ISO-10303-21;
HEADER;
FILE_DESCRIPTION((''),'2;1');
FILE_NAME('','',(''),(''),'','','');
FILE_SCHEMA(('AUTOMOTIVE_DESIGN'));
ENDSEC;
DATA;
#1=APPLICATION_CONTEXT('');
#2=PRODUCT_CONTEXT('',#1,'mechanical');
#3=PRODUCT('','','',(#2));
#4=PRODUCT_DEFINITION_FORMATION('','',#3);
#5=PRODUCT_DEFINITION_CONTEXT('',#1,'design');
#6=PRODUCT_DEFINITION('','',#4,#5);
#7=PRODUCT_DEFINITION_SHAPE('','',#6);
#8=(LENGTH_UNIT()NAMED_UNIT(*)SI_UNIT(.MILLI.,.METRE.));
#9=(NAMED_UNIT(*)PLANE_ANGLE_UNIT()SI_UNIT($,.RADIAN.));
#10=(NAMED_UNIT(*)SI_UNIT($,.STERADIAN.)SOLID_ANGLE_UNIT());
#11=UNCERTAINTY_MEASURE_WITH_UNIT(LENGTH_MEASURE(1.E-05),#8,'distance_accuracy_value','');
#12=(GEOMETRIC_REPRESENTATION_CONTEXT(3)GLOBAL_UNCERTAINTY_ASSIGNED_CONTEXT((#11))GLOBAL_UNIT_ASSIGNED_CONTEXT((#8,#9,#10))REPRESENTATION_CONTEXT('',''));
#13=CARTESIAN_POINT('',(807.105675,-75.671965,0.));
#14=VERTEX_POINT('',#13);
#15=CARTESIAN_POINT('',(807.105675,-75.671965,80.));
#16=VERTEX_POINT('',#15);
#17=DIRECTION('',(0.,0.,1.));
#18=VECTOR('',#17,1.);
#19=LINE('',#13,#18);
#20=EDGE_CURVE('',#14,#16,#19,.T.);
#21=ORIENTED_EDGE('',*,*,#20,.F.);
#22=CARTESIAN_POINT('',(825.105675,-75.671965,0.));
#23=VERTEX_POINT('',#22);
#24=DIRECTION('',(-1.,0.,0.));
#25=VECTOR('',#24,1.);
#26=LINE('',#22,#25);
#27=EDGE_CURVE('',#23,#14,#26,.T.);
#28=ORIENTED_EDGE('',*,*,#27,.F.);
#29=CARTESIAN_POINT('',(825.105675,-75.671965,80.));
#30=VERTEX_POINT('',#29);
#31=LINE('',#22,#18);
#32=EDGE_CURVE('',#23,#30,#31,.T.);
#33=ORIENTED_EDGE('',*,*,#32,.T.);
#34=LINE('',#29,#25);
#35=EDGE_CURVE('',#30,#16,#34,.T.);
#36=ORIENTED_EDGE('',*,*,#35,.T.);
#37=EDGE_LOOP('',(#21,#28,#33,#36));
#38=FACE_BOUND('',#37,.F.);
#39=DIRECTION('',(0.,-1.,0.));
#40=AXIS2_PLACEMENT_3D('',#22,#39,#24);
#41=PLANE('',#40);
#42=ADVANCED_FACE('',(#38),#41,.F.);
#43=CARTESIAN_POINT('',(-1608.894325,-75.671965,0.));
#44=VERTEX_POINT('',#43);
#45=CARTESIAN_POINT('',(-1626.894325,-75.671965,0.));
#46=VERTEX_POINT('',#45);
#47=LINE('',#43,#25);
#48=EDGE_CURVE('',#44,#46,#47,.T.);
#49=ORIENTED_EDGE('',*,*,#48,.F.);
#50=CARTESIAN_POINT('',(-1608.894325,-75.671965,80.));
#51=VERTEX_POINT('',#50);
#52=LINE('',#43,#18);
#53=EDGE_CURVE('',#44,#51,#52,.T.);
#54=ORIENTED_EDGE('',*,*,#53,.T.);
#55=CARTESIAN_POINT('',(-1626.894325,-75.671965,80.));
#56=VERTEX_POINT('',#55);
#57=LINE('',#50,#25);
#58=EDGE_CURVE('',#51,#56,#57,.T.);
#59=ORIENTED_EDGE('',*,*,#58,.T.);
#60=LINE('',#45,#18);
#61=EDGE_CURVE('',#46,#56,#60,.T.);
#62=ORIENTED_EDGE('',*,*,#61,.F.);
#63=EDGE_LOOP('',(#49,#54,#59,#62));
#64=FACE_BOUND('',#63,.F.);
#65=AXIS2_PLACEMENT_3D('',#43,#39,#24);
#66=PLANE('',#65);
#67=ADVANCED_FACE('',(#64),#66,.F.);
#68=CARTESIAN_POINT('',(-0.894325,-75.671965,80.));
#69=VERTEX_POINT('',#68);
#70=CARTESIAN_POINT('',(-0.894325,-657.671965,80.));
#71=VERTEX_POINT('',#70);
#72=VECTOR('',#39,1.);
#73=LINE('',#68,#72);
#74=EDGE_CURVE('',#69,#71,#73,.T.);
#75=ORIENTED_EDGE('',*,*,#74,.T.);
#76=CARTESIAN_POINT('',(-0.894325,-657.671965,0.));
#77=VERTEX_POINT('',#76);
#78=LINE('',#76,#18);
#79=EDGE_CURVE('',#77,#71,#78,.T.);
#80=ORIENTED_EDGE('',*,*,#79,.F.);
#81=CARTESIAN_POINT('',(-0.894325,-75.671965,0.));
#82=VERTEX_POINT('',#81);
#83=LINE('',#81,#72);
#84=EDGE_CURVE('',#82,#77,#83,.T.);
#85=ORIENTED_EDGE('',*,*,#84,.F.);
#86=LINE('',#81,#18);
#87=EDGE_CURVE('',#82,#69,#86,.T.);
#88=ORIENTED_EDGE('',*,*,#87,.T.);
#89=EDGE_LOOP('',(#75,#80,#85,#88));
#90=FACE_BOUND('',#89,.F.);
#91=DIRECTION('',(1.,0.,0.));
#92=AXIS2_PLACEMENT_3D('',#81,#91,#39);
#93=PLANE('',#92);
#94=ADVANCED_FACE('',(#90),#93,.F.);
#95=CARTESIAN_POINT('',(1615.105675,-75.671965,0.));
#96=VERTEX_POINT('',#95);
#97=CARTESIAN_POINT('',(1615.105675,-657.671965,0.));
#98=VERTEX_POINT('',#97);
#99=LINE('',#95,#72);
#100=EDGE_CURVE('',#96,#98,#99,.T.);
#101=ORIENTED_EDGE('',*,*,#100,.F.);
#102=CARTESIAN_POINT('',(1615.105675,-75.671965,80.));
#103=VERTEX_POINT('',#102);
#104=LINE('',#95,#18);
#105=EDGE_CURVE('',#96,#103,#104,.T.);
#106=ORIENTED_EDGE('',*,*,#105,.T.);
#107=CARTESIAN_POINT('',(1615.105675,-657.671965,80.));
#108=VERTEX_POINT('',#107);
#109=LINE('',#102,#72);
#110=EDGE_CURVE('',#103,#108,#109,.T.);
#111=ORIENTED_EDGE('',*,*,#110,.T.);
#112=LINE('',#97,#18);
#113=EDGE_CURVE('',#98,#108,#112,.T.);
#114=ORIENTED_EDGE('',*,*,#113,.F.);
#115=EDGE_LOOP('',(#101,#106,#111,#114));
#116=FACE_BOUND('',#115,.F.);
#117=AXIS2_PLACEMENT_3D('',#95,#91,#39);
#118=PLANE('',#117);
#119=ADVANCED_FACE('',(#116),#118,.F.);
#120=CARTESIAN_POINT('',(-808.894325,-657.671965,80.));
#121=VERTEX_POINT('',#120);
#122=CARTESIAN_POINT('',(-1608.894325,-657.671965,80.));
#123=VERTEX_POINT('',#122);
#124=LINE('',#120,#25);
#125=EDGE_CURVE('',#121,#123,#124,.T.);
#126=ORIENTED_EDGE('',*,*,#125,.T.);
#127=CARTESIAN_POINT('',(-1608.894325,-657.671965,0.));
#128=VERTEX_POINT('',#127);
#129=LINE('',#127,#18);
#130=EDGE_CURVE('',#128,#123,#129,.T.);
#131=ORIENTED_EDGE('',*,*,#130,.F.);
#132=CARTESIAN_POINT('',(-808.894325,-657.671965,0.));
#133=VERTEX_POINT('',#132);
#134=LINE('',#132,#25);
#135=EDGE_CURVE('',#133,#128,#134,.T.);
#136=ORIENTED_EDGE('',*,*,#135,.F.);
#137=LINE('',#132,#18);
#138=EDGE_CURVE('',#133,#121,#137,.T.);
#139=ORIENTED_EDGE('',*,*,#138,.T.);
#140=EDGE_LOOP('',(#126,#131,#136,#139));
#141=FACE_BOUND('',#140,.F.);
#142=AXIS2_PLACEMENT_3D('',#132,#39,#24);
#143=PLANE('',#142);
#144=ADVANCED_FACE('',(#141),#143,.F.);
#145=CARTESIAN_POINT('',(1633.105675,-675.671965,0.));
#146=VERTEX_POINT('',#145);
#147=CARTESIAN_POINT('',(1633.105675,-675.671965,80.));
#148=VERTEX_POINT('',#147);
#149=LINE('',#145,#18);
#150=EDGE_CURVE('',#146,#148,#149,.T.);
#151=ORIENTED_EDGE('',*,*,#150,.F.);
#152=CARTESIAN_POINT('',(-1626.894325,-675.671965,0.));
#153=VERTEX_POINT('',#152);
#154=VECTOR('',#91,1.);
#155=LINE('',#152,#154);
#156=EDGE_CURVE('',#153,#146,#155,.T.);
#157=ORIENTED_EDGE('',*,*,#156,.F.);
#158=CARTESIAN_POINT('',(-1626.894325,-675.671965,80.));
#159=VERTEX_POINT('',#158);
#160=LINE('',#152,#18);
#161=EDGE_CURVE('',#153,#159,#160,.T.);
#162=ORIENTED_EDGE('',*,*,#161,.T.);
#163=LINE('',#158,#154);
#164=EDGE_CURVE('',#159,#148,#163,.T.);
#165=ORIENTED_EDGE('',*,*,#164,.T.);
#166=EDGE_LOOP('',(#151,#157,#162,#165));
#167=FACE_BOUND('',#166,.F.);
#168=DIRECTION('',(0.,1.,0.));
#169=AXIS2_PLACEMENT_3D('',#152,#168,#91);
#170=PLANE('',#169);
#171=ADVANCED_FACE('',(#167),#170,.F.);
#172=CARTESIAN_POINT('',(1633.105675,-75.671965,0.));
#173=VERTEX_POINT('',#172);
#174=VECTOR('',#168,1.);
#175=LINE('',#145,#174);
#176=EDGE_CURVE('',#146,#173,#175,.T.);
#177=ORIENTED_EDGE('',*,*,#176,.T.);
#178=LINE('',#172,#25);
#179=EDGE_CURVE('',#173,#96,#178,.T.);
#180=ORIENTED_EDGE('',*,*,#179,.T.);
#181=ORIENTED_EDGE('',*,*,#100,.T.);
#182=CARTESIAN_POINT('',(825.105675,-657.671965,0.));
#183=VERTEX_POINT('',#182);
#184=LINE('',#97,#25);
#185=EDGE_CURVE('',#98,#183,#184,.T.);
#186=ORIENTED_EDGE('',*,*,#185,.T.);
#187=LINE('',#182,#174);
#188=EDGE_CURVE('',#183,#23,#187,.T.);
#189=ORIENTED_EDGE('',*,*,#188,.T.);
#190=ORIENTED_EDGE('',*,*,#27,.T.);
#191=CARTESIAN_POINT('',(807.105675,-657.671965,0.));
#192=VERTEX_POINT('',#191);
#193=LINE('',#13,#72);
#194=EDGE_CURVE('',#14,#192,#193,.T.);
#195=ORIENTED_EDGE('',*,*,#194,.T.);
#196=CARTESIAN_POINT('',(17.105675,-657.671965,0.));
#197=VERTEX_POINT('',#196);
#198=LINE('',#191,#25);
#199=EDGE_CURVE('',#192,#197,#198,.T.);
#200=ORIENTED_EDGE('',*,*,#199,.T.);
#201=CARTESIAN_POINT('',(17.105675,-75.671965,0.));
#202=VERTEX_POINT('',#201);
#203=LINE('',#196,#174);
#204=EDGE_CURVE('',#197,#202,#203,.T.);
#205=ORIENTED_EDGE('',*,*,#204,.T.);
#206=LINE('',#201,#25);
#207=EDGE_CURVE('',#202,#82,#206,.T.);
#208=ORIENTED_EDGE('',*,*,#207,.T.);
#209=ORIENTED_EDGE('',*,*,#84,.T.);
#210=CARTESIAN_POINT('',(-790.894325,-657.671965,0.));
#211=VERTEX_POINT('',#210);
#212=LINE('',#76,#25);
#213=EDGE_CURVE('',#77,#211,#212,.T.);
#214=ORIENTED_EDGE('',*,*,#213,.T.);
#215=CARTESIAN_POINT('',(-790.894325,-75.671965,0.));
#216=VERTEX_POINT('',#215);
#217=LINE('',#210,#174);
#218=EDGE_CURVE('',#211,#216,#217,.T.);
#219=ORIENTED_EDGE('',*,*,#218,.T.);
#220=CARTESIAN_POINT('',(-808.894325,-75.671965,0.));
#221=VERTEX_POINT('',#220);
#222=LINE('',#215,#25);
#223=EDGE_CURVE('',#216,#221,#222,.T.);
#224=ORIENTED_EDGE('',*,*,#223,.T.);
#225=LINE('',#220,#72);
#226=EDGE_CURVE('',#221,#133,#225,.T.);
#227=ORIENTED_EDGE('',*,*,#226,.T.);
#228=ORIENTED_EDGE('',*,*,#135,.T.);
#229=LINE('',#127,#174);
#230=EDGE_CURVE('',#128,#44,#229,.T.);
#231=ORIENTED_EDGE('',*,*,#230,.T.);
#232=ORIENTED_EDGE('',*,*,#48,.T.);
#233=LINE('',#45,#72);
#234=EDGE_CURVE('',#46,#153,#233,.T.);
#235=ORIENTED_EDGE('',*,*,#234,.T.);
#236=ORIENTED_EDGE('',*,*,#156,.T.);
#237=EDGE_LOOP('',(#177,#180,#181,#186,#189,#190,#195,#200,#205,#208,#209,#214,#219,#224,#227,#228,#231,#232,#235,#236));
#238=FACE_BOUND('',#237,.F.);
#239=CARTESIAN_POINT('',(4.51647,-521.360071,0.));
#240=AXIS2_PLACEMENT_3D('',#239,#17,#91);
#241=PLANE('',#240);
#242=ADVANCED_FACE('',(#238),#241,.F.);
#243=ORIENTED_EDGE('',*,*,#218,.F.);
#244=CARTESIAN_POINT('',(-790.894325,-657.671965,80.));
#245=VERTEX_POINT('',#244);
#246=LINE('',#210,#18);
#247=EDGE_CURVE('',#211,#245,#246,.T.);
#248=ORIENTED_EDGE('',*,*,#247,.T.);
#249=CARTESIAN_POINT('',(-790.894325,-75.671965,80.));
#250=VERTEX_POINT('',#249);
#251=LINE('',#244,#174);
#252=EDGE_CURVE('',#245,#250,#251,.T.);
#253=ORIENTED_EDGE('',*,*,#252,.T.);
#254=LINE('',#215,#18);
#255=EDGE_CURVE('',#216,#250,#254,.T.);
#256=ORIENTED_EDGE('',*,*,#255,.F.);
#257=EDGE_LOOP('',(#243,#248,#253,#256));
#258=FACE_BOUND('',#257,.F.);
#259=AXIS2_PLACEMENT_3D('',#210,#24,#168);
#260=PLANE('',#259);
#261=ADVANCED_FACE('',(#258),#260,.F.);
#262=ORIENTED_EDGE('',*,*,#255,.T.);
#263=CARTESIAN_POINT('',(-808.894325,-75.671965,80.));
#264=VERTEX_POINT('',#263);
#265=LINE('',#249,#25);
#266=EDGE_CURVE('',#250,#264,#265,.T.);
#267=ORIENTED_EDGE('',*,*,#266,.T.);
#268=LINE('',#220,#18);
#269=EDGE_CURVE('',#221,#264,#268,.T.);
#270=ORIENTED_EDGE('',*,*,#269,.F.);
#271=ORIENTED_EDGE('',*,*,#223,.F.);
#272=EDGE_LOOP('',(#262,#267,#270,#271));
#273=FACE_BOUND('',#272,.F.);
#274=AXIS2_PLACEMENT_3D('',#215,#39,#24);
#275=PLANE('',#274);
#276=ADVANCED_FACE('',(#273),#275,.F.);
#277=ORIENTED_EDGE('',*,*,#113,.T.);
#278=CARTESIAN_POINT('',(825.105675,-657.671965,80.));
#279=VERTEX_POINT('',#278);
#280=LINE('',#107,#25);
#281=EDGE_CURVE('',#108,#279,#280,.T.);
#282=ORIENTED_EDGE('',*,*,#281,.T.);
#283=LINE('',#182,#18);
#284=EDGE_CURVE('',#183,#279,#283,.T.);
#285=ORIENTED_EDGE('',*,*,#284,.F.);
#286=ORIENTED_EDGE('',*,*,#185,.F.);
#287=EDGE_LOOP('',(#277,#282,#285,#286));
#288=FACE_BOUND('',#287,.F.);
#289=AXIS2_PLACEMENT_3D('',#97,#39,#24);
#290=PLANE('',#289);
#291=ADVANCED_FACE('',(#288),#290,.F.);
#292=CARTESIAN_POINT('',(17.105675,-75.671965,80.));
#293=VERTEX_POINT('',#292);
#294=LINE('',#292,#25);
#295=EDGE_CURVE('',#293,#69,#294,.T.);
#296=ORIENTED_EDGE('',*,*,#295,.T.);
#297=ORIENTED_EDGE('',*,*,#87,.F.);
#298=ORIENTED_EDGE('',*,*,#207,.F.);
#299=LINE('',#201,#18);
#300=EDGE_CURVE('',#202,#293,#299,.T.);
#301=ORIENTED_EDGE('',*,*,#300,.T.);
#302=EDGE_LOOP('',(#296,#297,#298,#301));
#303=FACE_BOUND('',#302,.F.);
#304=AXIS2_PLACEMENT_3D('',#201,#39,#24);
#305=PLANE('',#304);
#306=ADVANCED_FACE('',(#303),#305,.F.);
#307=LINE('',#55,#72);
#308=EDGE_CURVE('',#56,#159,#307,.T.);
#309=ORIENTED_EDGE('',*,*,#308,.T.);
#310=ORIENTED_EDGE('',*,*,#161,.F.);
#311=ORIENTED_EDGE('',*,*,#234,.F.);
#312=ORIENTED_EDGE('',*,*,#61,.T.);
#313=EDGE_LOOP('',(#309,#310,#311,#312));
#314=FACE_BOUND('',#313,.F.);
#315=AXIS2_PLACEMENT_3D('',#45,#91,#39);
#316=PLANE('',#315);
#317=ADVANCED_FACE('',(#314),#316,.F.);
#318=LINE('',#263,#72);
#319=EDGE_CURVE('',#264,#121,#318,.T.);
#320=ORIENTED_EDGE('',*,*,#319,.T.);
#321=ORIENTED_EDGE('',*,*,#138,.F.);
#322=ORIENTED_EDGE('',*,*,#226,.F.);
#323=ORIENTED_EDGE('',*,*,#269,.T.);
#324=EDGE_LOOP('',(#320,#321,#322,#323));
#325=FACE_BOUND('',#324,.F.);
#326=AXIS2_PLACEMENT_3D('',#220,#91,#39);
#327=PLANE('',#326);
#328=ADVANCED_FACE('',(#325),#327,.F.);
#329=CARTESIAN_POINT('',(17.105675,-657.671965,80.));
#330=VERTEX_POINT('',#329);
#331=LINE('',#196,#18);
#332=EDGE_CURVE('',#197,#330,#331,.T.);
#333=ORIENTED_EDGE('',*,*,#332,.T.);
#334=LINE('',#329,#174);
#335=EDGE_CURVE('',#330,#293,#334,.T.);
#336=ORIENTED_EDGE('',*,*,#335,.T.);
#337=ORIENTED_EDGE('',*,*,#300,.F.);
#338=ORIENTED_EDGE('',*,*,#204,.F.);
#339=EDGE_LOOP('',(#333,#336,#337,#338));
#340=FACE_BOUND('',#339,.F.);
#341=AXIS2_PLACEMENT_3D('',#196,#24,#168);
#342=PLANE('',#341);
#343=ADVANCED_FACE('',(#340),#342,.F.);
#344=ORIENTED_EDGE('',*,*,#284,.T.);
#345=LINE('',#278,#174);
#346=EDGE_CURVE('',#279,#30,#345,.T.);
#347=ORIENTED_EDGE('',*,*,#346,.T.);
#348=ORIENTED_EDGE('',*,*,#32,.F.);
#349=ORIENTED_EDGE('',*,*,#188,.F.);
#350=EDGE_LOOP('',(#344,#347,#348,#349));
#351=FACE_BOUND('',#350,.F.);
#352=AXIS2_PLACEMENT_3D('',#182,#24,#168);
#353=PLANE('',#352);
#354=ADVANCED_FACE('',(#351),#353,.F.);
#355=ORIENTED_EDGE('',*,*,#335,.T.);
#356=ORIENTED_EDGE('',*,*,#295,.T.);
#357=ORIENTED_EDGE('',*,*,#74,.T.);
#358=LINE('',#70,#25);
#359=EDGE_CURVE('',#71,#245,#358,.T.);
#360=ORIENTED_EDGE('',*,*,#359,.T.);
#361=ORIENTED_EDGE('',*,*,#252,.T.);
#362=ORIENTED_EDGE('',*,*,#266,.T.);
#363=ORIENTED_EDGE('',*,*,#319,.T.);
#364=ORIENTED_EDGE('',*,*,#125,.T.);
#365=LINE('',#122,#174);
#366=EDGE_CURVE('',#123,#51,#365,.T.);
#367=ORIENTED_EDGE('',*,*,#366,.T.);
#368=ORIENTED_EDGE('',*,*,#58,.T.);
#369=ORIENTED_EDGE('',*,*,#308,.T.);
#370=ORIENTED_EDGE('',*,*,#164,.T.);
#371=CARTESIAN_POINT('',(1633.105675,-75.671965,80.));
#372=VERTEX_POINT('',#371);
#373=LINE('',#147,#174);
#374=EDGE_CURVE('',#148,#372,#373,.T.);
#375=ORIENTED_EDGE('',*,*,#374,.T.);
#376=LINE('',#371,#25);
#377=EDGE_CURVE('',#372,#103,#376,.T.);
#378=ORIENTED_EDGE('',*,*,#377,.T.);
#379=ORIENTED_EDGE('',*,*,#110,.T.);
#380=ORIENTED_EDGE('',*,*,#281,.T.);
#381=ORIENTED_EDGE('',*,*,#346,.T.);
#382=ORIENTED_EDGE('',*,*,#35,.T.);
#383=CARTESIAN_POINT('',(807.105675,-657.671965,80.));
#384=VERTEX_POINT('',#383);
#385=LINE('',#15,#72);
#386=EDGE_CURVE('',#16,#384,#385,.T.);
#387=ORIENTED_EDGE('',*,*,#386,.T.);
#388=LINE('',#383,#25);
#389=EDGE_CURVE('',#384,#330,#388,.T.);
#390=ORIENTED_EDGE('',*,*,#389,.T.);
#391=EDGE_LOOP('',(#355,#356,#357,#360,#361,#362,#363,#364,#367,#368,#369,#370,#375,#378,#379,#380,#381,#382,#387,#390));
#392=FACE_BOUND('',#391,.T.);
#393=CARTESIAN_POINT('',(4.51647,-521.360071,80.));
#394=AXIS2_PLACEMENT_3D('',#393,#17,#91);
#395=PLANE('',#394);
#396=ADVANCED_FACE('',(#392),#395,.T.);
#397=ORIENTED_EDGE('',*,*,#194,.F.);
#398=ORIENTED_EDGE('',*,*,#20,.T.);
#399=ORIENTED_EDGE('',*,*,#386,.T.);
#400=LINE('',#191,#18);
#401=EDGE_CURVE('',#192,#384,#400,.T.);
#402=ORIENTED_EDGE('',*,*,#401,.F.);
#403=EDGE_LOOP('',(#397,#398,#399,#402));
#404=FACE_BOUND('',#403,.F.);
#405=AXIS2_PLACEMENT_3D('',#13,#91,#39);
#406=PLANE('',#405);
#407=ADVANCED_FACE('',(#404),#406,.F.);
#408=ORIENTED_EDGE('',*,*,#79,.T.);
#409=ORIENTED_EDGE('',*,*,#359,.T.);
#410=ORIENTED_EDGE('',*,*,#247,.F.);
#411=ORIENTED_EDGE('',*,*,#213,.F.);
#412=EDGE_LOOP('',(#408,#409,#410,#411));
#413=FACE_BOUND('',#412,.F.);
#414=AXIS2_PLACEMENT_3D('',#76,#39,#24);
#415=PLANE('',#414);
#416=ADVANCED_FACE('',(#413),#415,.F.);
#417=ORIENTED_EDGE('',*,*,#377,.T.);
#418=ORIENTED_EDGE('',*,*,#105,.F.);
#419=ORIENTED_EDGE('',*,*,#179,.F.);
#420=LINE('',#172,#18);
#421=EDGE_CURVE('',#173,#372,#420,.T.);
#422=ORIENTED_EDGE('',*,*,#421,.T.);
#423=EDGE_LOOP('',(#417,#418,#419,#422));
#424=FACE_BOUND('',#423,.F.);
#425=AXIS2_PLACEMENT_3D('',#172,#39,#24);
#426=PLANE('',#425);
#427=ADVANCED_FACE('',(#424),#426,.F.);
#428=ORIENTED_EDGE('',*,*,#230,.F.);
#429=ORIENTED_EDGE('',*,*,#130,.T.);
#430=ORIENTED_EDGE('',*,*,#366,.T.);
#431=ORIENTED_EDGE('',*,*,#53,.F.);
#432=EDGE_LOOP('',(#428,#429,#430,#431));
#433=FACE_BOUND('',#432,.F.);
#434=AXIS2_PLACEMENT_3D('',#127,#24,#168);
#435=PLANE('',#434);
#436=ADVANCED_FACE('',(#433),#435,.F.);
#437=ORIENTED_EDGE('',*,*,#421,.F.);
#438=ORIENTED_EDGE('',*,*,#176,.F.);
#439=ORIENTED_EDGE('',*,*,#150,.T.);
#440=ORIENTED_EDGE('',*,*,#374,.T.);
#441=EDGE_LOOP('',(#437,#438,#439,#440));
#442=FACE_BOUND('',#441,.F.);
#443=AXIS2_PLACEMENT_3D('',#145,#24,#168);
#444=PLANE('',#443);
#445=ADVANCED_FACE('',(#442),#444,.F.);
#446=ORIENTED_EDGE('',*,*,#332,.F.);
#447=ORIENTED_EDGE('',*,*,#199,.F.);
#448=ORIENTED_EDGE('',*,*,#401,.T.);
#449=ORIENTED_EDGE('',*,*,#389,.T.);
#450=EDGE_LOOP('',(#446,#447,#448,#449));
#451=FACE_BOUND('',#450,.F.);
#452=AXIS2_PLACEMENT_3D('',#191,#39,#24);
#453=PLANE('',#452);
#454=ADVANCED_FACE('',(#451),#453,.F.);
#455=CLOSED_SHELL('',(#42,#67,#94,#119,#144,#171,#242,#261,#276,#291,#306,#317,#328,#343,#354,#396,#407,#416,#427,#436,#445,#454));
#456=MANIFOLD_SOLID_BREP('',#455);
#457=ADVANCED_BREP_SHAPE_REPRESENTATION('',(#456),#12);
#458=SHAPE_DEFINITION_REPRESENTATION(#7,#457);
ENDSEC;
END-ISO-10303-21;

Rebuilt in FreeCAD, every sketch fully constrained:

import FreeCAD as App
import Part
import Sketcher
Q = App.Units.Quantity


def add_polygon(sketch, points):
    """Adds a closed chain of lines whose ends are joined by coincident constraints."""
    first, n = sketch.GeometryCount, len(points)
    for a, b in zip(points, points[1:] + points[:1]):
        sketch.addGeometry(Part.LineSegment(App.Vector(*a, 0), App.Vector(*b, 0)), False)
    for i in range(n):
        sketch.addConstraint(Sketcher.Constraint("Coincident", first + i, 2, first + (i + 1) % n, 1))

doc = App.newDocument("Part")
params = doc.addObject("Spreadsheet::Sheet", "Params")
for row, (alias, value) in enumerate([
    ("sketch1_width", "3260 mm"),
    ("sketch1_width2", "18 mm"),
    ("sketch1_width3", "790 mm"),
    ("sketch1_height", "600 mm"),
    ("sketch1_height2", "582 mm"),
    ("pad1_length", "80 mm"),
], start=1):
    params.set(f"A{row}", alias)
    params.set(f"B{row}", "=" + value)
    params.setAlias(f"B{row}", alias)

body = doc.addObject("PartDesign::Body", "Body")

# Sketch on XY plane
sketch1 = body.newObject("Sketcher::SketchObject", "Sketch")
sketch1.AttachmentSupport = (doc.getObject("XY_Plane"), [""])
sketch1.MapMode = "FlatFace"
add_polygon(sketch1, [(-1627, -76), (-1627, -676), (1633, -676), (1633, -76), (1615, -76), (1615, -658), (825, -658), (825, -76), (807, -76), (807, -658), (17, -658), (17, -76), (-1, -76), (-1, -658), (-791, -658), (-791, -76), (-809, -76), (-809, -658), (-1609, -658), (-1609, -76)])  # lines 0-19
sketch1.addConstraint([
    Sketcher.Constraint("Vertical", 0),
    Sketcher.Constraint("Horizontal", 1),
    Sketcher.Constraint("Vertical", 2),
    Sketcher.Constraint("Horizontal", 3),
    Sketcher.Constraint("Vertical", 4),
    Sketcher.Constraint("Horizontal", 5),
    Sketcher.Constraint("Vertical", 6),
    Sketcher.Constraint("Horizontal", 7),
    Sketcher.Constraint("Vertical", 8),
    Sketcher.Constraint("Horizontal", 9),
    Sketcher.Constraint("Vertical", 10),
    Sketcher.Constraint("Horizontal", 11),
    Sketcher.Constraint("Vertical", 12),
    Sketcher.Constraint("Horizontal", 13),
    Sketcher.Constraint("Vertical", 14),
    Sketcher.Constraint("Horizontal", 15),
    Sketcher.Constraint("Vertical", 16),
    Sketcher.Constraint("Horizontal", 17),
    Sketcher.Constraint("Vertical", 18),
    Sketcher.Constraint("Horizontal", 19),
    Sketcher.Constraint("Horizontal", 3, 2, 6, 2),
    Sketcher.Constraint("Horizontal", 5, 2, 8, 2),
    Sketcher.Constraint("Horizontal", 7, 2, 10, 2),
    Sketcher.Constraint("Horizontal", 9, 2, 12, 2),
    Sketcher.Constraint("Horizontal", 11, 2, 14, 2),
    Sketcher.Constraint("Horizontal", 13, 2, 16, 2),
    Sketcher.Constraint("Horizontal", 15, 2, 18, 2),
    Sketcher.Constraint("Equal", 3, 7),
    Sketcher.Constraint("Equal", 5, 9),
    Sketcher.Constraint("Equal", 7, 11),
    Sketcher.Constraint("Equal", 9, 13),
    Sketcher.Constraint("Equal", 11, 15),
    Sketcher.Constraint("Equal", 15, 19),
    Sketcher.Constraint("DistanceX", 1, 1, 1, 2, Q("3260 mm")),
    Sketcher.Constraint("DistanceX", 3, 2, 3, 1, Q("18 mm")),
    Sketcher.Constraint("DistanceX", 5, 2, 5, 1, Q("790 mm")),
    Sketcher.Constraint("DistanceY", 0, 2, 0, 1, Q("600 mm")),
    Sketcher.Constraint("DistanceY", 4, 2, 4, 1, Q("582 mm")),
    Sketcher.Constraint("DistanceX", 0, 2, -1, 1, Q("1626.894325 mm")),
    Sketcher.Constraint("DistanceY", 0, 2, -1, 1, Q("675.671965 mm")),
])
sketch1.setExpression("Constraints[53]", "Params.sketch1_width")
sketch1.setExpression("Constraints[54]", "Params.sketch1_width2")
sketch1.setExpression("Constraints[55]", "Params.sketch1_width3")
sketch1.setExpression("Constraints[56]", "Params.sketch1_height")
sketch1.setExpression("Constraints[57]", "Params.sketch1_height2")
pad1 = body.newObject("PartDesign::Pad", "Pad")
pad1.Profile = sketch1
pad1.setExpression("Length", "Params.pad1_length")

doc.recompute()
